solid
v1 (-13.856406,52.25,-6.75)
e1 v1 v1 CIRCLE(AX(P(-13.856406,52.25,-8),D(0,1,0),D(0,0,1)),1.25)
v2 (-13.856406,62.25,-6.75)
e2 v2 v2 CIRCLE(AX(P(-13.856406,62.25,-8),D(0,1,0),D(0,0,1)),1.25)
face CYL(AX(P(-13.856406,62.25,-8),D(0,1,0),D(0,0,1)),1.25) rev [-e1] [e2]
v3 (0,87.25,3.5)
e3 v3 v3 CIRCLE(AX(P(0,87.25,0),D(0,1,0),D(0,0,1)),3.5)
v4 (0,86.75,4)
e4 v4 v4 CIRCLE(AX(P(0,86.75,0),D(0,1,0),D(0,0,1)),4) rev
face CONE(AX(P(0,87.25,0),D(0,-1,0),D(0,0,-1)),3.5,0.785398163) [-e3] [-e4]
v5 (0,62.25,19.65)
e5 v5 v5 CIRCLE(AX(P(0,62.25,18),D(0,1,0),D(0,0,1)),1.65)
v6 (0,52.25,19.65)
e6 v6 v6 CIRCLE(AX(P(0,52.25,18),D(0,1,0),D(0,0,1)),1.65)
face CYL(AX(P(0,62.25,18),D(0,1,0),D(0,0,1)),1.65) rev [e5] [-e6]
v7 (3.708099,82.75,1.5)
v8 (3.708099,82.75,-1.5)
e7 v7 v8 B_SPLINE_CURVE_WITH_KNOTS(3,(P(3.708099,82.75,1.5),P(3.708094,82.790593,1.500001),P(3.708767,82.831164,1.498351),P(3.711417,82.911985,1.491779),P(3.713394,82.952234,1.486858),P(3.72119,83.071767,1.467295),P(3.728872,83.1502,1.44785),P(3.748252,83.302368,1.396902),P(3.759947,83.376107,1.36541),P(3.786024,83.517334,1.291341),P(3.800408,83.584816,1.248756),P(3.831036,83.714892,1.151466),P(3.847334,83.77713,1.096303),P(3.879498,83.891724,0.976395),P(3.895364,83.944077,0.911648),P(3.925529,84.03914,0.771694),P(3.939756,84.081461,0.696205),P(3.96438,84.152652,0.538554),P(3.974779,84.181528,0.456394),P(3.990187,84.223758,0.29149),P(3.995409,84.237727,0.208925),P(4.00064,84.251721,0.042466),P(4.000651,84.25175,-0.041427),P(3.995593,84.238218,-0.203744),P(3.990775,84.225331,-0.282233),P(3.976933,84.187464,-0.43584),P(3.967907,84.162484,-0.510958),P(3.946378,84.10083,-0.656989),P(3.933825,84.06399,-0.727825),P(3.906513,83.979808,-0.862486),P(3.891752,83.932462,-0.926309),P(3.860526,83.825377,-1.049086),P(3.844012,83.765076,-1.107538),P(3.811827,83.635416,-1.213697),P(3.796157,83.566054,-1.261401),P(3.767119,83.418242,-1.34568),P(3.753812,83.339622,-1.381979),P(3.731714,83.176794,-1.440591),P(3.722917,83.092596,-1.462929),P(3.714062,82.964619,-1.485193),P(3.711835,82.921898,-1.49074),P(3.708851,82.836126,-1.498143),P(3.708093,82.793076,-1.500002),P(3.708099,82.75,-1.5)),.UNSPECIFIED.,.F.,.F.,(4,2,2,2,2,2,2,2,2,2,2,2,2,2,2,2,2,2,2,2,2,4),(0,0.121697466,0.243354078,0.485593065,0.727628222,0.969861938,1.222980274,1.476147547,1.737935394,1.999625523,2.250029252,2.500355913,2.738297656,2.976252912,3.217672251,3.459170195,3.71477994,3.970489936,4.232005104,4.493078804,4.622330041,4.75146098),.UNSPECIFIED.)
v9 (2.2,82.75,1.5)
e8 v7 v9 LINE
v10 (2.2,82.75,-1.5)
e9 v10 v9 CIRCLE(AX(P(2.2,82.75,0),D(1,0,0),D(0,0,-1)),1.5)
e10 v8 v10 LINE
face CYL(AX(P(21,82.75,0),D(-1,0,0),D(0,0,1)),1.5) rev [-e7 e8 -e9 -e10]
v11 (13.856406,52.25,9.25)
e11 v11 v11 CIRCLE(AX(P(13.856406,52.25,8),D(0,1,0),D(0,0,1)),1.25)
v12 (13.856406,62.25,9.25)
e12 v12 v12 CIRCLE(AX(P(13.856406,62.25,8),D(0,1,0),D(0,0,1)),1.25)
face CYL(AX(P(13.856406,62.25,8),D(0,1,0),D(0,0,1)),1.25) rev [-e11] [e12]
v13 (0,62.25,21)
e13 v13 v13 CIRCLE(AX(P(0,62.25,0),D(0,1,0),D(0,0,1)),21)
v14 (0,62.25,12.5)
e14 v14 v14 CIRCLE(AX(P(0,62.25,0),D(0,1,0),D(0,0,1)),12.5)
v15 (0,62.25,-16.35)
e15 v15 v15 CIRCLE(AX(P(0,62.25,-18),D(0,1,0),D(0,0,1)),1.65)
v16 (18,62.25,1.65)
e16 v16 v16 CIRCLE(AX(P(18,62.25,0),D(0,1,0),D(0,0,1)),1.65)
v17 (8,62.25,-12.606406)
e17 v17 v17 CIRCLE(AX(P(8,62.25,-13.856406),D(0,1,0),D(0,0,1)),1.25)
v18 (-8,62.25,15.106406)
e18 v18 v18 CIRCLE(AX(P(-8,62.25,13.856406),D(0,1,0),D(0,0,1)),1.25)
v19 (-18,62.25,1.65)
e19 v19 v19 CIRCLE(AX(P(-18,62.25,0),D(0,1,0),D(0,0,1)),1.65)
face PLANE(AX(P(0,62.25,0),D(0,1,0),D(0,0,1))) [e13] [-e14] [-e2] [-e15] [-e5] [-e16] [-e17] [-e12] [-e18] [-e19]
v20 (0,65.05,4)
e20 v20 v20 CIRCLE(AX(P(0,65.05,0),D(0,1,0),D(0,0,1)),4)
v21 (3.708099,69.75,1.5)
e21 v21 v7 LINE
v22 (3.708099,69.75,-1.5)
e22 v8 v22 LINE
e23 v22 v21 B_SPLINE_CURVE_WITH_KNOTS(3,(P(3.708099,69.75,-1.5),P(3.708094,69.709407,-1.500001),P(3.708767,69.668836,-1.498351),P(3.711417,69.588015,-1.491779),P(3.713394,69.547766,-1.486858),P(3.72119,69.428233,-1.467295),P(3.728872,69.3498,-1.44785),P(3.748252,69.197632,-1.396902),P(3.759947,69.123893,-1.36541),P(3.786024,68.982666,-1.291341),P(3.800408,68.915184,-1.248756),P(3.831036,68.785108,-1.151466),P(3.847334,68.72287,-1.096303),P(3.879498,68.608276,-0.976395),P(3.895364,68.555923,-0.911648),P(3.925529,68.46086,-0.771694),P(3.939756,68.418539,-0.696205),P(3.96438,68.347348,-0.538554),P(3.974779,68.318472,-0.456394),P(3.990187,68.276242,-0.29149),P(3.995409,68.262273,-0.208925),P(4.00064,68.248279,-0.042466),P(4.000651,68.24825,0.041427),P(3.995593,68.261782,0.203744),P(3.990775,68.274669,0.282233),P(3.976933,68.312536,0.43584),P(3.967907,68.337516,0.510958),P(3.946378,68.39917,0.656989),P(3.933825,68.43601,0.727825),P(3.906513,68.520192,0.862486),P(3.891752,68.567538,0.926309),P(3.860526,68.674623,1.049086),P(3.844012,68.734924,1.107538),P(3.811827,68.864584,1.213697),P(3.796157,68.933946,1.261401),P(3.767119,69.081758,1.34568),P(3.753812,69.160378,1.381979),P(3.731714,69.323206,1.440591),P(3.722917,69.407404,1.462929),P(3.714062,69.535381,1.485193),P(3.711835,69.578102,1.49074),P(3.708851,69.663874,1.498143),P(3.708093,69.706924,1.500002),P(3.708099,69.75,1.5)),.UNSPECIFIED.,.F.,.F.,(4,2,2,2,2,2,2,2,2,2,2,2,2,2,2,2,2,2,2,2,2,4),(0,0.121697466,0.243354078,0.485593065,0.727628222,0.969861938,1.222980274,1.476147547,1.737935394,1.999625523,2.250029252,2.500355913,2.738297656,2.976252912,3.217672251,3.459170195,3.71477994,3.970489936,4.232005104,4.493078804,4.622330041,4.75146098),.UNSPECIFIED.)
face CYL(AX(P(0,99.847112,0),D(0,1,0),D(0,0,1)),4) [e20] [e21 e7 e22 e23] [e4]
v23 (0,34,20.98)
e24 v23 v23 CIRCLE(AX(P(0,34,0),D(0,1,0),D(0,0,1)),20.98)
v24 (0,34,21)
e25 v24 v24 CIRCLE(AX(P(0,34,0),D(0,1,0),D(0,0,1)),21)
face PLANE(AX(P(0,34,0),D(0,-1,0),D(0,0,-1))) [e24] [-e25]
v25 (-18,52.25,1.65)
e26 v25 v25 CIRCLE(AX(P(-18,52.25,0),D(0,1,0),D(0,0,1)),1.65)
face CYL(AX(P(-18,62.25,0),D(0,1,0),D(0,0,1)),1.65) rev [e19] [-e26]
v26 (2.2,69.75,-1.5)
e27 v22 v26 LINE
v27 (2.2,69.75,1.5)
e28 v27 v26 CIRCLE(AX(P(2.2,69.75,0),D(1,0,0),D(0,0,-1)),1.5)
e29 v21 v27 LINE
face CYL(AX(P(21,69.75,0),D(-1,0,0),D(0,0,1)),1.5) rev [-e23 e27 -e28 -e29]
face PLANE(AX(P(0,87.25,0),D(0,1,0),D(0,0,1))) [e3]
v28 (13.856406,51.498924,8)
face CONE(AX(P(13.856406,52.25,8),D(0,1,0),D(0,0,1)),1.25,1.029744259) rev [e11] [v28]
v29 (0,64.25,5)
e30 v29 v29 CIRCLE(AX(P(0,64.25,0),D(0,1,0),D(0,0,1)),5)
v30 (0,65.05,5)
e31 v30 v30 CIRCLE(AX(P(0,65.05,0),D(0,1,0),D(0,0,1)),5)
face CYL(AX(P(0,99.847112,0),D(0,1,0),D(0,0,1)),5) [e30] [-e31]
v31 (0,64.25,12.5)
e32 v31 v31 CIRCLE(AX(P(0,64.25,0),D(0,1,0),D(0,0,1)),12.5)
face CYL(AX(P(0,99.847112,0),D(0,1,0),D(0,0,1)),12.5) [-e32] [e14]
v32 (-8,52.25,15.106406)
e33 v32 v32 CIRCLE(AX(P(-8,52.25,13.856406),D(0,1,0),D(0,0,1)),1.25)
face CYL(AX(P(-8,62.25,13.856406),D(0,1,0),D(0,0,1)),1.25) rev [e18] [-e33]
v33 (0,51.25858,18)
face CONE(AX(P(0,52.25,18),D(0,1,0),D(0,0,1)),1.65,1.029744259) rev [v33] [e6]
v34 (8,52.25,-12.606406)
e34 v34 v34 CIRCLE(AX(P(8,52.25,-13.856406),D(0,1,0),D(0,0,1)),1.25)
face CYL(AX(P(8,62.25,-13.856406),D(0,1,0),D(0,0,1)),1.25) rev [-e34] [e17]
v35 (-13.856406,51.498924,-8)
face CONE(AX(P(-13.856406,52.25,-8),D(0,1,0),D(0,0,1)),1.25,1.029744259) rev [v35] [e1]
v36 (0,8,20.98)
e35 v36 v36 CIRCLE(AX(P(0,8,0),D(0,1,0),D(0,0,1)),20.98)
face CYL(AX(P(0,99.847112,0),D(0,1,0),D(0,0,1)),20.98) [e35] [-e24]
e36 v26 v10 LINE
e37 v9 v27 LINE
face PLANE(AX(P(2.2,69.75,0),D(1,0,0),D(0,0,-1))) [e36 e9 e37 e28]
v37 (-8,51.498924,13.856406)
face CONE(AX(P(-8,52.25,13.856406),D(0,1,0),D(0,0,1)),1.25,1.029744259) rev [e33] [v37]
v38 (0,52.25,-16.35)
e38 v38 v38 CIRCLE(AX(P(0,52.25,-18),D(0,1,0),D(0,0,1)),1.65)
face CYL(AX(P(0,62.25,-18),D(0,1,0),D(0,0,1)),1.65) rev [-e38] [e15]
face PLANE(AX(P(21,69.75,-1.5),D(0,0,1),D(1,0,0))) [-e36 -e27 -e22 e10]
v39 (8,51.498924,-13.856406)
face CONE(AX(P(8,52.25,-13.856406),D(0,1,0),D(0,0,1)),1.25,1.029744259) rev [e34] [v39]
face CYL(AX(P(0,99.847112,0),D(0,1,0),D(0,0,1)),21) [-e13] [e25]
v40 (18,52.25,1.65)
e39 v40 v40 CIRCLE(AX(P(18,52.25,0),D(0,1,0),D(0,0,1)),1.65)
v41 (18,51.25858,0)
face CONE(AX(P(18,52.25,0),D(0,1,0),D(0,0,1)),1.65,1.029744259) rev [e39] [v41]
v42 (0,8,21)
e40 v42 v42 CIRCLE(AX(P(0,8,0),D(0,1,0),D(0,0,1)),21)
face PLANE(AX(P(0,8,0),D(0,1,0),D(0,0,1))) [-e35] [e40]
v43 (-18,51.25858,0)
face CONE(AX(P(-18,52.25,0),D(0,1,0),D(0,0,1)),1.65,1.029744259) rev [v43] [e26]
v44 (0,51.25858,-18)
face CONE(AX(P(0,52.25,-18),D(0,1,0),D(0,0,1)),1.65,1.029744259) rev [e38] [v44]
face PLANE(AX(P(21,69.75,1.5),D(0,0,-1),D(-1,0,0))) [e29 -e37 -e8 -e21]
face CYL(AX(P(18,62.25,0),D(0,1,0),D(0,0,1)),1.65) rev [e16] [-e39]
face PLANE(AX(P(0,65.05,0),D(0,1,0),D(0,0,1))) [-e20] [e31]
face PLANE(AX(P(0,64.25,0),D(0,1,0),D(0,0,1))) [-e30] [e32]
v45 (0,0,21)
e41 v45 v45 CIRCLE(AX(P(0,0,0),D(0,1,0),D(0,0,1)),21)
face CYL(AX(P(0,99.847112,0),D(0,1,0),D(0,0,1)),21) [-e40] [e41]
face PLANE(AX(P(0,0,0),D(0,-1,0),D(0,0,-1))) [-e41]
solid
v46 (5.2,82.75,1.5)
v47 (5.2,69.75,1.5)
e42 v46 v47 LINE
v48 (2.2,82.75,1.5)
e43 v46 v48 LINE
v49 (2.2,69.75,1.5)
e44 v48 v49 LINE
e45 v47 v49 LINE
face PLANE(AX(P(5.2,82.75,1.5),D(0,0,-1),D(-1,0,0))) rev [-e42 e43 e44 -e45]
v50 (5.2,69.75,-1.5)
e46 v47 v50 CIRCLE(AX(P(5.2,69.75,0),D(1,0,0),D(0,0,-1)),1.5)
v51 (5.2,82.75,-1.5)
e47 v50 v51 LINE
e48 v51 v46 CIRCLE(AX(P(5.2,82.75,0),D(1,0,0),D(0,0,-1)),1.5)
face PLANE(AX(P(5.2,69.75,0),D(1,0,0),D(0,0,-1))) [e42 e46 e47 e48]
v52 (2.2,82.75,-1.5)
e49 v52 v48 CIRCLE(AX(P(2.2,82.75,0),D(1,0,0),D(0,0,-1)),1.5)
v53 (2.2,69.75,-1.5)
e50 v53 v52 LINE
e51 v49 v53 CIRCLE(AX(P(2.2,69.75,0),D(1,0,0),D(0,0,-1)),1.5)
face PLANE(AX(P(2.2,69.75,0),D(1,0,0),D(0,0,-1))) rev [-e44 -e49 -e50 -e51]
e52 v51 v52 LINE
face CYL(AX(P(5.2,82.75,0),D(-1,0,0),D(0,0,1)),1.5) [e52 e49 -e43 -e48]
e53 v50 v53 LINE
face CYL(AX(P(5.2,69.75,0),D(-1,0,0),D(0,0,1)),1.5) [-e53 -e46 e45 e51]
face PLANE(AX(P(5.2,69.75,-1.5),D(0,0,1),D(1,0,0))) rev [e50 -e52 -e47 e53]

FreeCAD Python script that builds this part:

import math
import FreeCAD as App
import Part
import Sketcher
from FreeCAD import Vector
Q = App.Units.Quantity


def edges_at(feature, points):
    """Names of the edges that pass closest to the given points."""
    edges = feature.Shape.Edges
    near = lambda p: min(range(len(edges)), key=lambda i: edges[i].distToShape(Part.Vertex(*p))[0])
    return sorted({f"Edge{near(p) + 1}" for p in points})

doc = App.newDocument("Part")
body = doc.addObject("PartDesign::Body", "Body")

# Sketch on XY plane
sketch1 = body.newObject("Sketcher::SketchObject", "Sketch")
sketch1.AttachmentSupport = (doc.getObject("XY_Plane"), [""])
sketch1.MapMode = "FlatFace"
sketch1.addGeometry(Part.LineSegment(Vector(4, 87.25, 0), Vector(0, 87.25, 0)), False)
sketch1.addGeometry(Part.LineSegment(Vector(0, 87.25, 0), Vector(0, 0, 0)), False)
sketch1.addGeometry(Part.LineSegment(Vector(0, 0, 0), Vector(21, 0, 0)), False)
sketch1.addGeometry(Part.LineSegment(Vector(21, 0, 0), Vector(21, 8, 0)), False)
sketch1.addGeometry(Part.LineSegment(Vector(21, 8, 0), Vector(20.98, 8, 0)), False)
sketch1.addGeometry(Part.LineSegment(Vector(20.98, 8, 0), Vector(20.98, 34, 0)), False)
sketch1.addGeometry(Part.LineSegment(Vector(20.98, 34, 0), Vector(21, 34, 0)), False)
sketch1.addGeometry(Part.LineSegment(Vector(21, 34, 0), Vector(21, 62.25, 0)), False)
sketch1.addGeometry(Part.LineSegment(Vector(21, 62.25, 0), Vector(12.5, 62.25, 0)), False)
sketch1.addGeometry(Part.LineSegment(Vector(12.5, 62.25, 0), Vector(12.5, 64.25, 0)), False)
sketch1.addGeometry(Part.LineSegment(Vector(12.5, 64.25, 0), Vector(5, 64.25, 0)), False)
sketch1.addGeometry(Part.LineSegment(Vector(5, 64.25, 0), Vector(5, 65.05, 0)), False)
sketch1.addGeometry(Part.LineSegment(Vector(5, 65.05, 0), Vector(4, 65.05, 0)), False)
sketch1.addGeometry(Part.LineSegment(Vector(4, 65.05, 0), Vector(4, 87.25, 0)), False)
sketch1.addConstraint(Sketcher.Constraint("Coincident", 0, 2, 1, 1))
sketch1.addConstraint(Sketcher.Constraint("Coincident", 1, 2, 2, 1))
sketch1.addConstraint(Sketcher.Constraint("Coincident", 2, 2, 3, 1))
sketch1.addConstraint(Sketcher.Constraint("Coincident", 3, 2, 4, 1))
sketch1.addConstraint(Sketcher.Constraint("Coincident", 4, 2, 5, 1))
sketch1.addConstraint(Sketcher.Constraint("Coincident", 5, 2, 6, 1))
sketch1.addConstraint(Sketcher.Constraint("Coincident", 6, 2, 7, 1))
sketch1.addConstraint(Sketcher.Constraint("Coincident", 7, 2, 8, 1))
sketch1.addConstraint(Sketcher.Constraint("Coincident", 8, 2, 9, 1))
sketch1.addConstraint(Sketcher.Constraint("Coincident", 9, 2, 10, 1))
sketch1.addConstraint(Sketcher.Constraint("Coincident", 10, 2, 11, 1))
sketch1.addConstraint(Sketcher.Constraint("Coincident", 11, 2, 12, 1))
sketch1.addConstraint(Sketcher.Constraint("Coincident", 12, 2, 13, 1))
sketch1.addConstraint(Sketcher.Constraint("Coincident", 13, 2, 0, 1))
sketch1.addConstraint(Sketcher.Constraint("Horizontal", 0))
sketch1.addConstraint(Sketcher.Constraint("Vertical", 1))
sketch1.addConstraint(Sketcher.Constraint("Horizontal", 2))
sketch1.addConstraint(Sketcher.Constraint("Vertical", 3))
sketch1.addConstraint(Sketcher.Constraint("Horizontal", 4))
sketch1.addConstraint(Sketcher.Constraint("Vertical", 5))
sketch1.addConstraint(Sketcher.Constraint("Horizontal", 6))
sketch1.addConstraint(Sketcher.Constraint("Vertical", 7))
sketch1.addConstraint(Sketcher.Constraint("Horizontal", 8))
sketch1.addConstraint(Sketcher.Constraint("Vertical", 9))
sketch1.addConstraint(Sketcher.Constraint("Horizontal", 10))
sketch1.addConstraint(Sketcher.Constraint("Vertical", 11))
sketch1.addConstraint(Sketcher.Constraint("Horizontal", 12))
sketch1.addConstraint(Sketcher.Constraint("Vertical", 13))
sketch1.addConstraint(Sketcher.Constraint("Coincident", 1, 2, -1, 1))
sketch1.addConstraint(Sketcher.Constraint("Vertical", 3, 2, 6, 2))
sketch1.addConstraint(Sketcher.Constraint("DistanceX", 0, 2, 0, 1, 4.0))
sketch1.addConstraint(Sketcher.Constraint("DistanceX", 2, 1, 2, 2, 21.0))
sketch1.addConstraint(Sketcher.Constraint("DistanceX", 12, 2, 12, 1, 1.0))
sketch1.addConstraint(Sketcher.Constraint("DistanceY", 3, 1, 3, 2, 8.0))
sketch1.addConstraint(Sketcher.Constraint("DistanceY", 5, 1, 5, 2, 26.0))
sketch1.addConstraint(Sketcher.Constraint("DistanceY", 9, 1, 9, 2, 2.0))
sketch1.addConstraint(Sketcher.Constraint("DistanceX", 8, 2, 8, 1, 8.5))
sketch1.addConstraint(Sketcher.Constraint("DistanceY", 11, 1, 11, 2, 0.8))
sketch1.addConstraint(Sketcher.Constraint("DistanceY", 13, 1, 13, 2, 22.2))
sketch1.addConstraint(Sketcher.Constraint("DistanceX", 4, 2, 4, 1, 0.02))
sketch1.addConstraint(Sketcher.Constraint("DistanceY", 1, 2, 1, 1, 87.25))
revolution = body.newObject("PartDesign::Revolution", "Revolution")
revolution.Profile = sketch1
revolution.ReferenceAxis = (sketch1, ["V_Axis"])
revolution.Angle = 360

# Sketch on YZ plane
sketch2 = body.newObject("Sketcher::SketchObject", "Sketch001")
sketch2.AttachmentSupport = (doc.getObject("YZ_Plane"), [""])
sketch2.MapMode = "FlatFace"
sketch2.AttachmentOffset = App.Placement(Vector(0, 0, 2.2), App.Rotation())
sketch2.addGeometry(Part.LineSegment(Vector(82.8, 1.5, 0), Vector(69.8, 1.5, 0)), False)
sketch2.addGeometry(Part.ArcOfCircle(Part.Circle(Vector(69.8, 0, 0), Vector(0, 0, 1), 1.5), math.radians(90), math.radians(270)), False)
sketch2.addGeometry(Part.LineSegment(Vector(69.8, -1.5, 0), Vector(82.8, -1.5, 0)), False)
sketch2.addGeometry(Part.ArcOfCircle(Part.Circle(Vector(82.8, 0, 0), Vector(0, 0, 1), 1.5), math.radians(-90), math.radians(90)), False)
sketch2.addConstraint(Sketcher.Constraint("Tangent", 0, 2, 1, 1))
sketch2.addConstraint(Sketcher.Constraint("Tangent", 1, 2, 2, 1))
sketch2.addConstraint(Sketcher.Constraint("Tangent", 2, 2, 3, 1))
sketch2.addConstraint(Sketcher.Constraint("Tangent", 3, 2, 0, 1))
sketch2.addConstraint(Sketcher.Constraint("Horizontal", 0))
sketch2.addConstraint(Sketcher.Constraint("Horizontal", 2))
sketch2.addConstraint(Sketcher.Constraint("PointOnObject", 1, 3, -1))
sketch2.addConstraint(Sketcher.Constraint("Radius", 1, 1.5))
sketch2.addConstraint(Sketcher.Constraint("DistanceX", 0, 2, 0, 1, 13.0))
sketch2.addConstraint(Sketcher.Constraint("DistanceX", -1, 1, 1, 3, 69.75))
pocket1 = body.newObject("PartDesign::Pocket", "Pocket")
pocket1.Profile = sketch2
pocket1.Type = "ThroughAll"
pocket1.Reversed = True
doc.recompute()

chamfer = body.newObject("PartDesign::Chamfer", "Chamfer")
chamfer.Base = (pocket1, edges_at(pocket1, [(0, 87.25, -4)]))
chamfer.Size = 0.5

# Sketch on YZ plane
sketch3 = body.newObject("Sketcher::SketchObject", "Sketch002")
sketch3.AttachmentSupport = (doc.getObject("YZ_Plane"), [""])
sketch3.MapMode = "FlatFace"
sketch3.AttachmentOffset = App.Placement(Vector(0, 0, 13.856406), App.Rotation())
sketch3.addGeometry(Part.LineSegment(Vector(51.5, 8, 0), Vector(62.2, 8, 0)), False)
sketch3.addGeometry(Part.LineSegment(Vector(62.2, 8, 0), Vector(62.2, 9.2, 0)), False)
sketch3.addGeometry(Part.LineSegment(Vector(62.2, 9.2, 0), Vector(52.2, 9.2, 0)), False)
sketch3.addGeometry(Part.LineSegment(Vector(52.2, 9.2, 0), Vector(51.5, 8, 0)), False)
sketch3.addGeometry(Part.LineSegment(Vector(62.2, 8, 0), Vector(51.5, 8, 0)), True)  # axis
sketch3.addConstraint(Sketcher.Constraint("Coincident", 0, 2, 1, 1))
sketch3.addConstraint(Sketcher.Constraint("Coincident", 1, 2, 2, 1))
sketch3.addConstraint(Sketcher.Constraint("Coincident", 2, 2, 3, 1))
sketch3.addConstraint(Sketcher.Constraint("Coincident", 3, 2, 0, 1))
sketch3.addConstraint(Sketcher.Constraint("Horizontal", 0))
sketch3.addConstraint(Sketcher.Constraint("Vertical", 1))
sketch3.addConstraint(Sketcher.Constraint("Horizontal", 2))
sketch3.addConstraint(Sketcher.Constraint("Horizontal", 4))
sketch3.addConstraint(Sketcher.Constraint("Coincident", 4, 1, 0, 2))
sketch3.addConstraint(Sketcher.Constraint("Equal", 0, 4))
sketch3.addConstraint(Sketcher.Constraint("DistanceX", 2, 2, 2, 1, 10.0))
sketch3.addConstraint(Sketcher.Constraint("Angle", 3, Q("-121 deg")))
sketch3.addConstraint(Sketcher.Constraint("DistanceY", -1, 1, 0, 2, 8.0))
sketch3.addConstraint(Sketcher.Constraint("DistanceY", 1, 1, 1, 2, 1.25))
sketch3.addConstraint(Sketcher.Constraint("DistanceX", -1, 1, 0, 2, 62.25))
groove = body.newObject("PartDesign::Groove", "Groove")
groove.Profile = sketch3
groove.ReferenceAxis = (sketch3, ["Axis0"])
groove.Angle = 360
doc.recompute()

datumline = body.newObject("PartDesign::Line", "DatumLine")
datumline.Placement = App.Placement(Vector(0, 0, 0), App.Rotation(Vector(0, 0, 1), Vector(-0.258819045, 0, -0.965925826)))
linearpattern = body.newObject("PartDesign::LinearPattern", "LinearPattern")
linearpattern.Originals = [groove]
linearpattern.Direction = (datumline, [""])
linearpattern.Mode = "offset"
linearpattern.Offset = 22.627417
linearpattern.Occurrences = 2
body.Tip = linearpattern
doc.recompute()

datumline2 = body.newObject("PartDesign::Line", "DatumLine001")
datumline2.Placement = App.Placement(Vector(0, 0, 0), App.Rotation(Vector(0, 0, 1), Vector(-0.965925826, 0, 0.258819045)))
linearpattern2 = body.newObject("PartDesign::LinearPattern", "LinearPattern001")
linearpattern2.Originals = [groove]
linearpattern2.Direction = (datumline2, [""])
linearpattern2.Mode = "offset"
linearpattern2.Offset = 22.627417
linearpattern2.Occurrences = 2
body.Tip = linearpattern2
doc.recompute()

datumline3 = body.newObject("PartDesign::Line", "DatumLine002")
datumline3.Placement = App.Placement(Vector(0, 0, 0), App.Rotation(Vector(0, 0, 1), Vector(-0.866025404, 0, -0.5)))
linearpattern3 = body.newObject("PartDesign::LinearPattern", "LinearPattern002")
linearpattern3.Originals = [groove]
linearpattern3.Direction = (datumline3, [""])
linearpattern3.Mode = "offset"
linearpattern3.Offset = 32
linearpattern3.Occurrences = 2
body.Tip = linearpattern3

# Sketch on YZ plane
sketch4 = body.newObject("Sketcher::SketchObject", "Sketch003")
sketch4.AttachmentSupport = (doc.getObject("YZ_Plane"), [""])
sketch4.MapMode = "FlatFace"
sketch4.AttachmentOffset = App.Placement(Vector(0, 0, 18), App.Rotation())
sketch4.addGeometry(Part.LineSegment(Vector(51.3, 0, 0), Vector(62.2, 0, 0)), False)
sketch4.addGeometry(Part.LineSegment(Vector(62.2, 0, 0), Vector(62.2, 1.6, 0)), False)
sketch4.addGeometry(Part.LineSegment(Vector(62.2, 1.6, 0), Vector(52.2, 1.6, 0)), False)
sketch4.addGeometry(Part.LineSegment(Vector(52.2, 1.6, 0), Vector(51.3, 0, 0)), False)
sketch4.addConstraint(Sketcher.Constraint("Coincident", 0, 2, 1, 1))
sketch4.addConstraint(Sketcher.Constraint("Coincident", 1, 2, 2, 1))
sketch4.addConstraint(Sketcher.Constraint("Coincident", 2, 2, 3, 1))
sketch4.addConstraint(Sketcher.Constraint("Coincident", 3, 2, 0, 1))
sketch4.addConstraint(Sketcher.Constraint("Horizontal", 0))
sketch4.addConstraint(Sketcher.Constraint("Vertical", 1))
sketch4.addConstraint(Sketcher.Constraint("Horizontal", 2))
sketch4.addConstraint(Sketcher.Constraint("PointOnObject", 0, 2, -1))
sketch4.addConstraint(Sketcher.Constraint("DistanceX", 2, 2, 2, 1, 10.0))
sketch4.addConstraint(Sketcher.Constraint("Angle", 3, Q("-121 deg")))
sketch4.addConstraint(Sketcher.Constraint("DistanceY", 1, 1, 1, 2, 1.65))
sketch4.addConstraint(Sketcher.Constraint("DistanceX", -1, 1, 0, 2, 62.25))
groove2 = body.newObject("PartDesign::Groove", "Groove001")
groove2.Profile = sketch4
groove2.ReferenceAxis = (sketch4, ["H_Axis"])
groove2.Angle = 360
doc.recompute()

datumline4 = body.newObject("PartDesign::Line", "DatumLine003")
datumline4.Placement = App.Placement(Vector(0, 0, 0), App.Rotation(Vector(0, 0, 1), Vector(-0.707106781, 0, 0.707106781)))
linearpattern4 = body.newObject("PartDesign::LinearPattern", "LinearPattern003")
linearpattern4.Originals = [groove2]
linearpattern4.Direction = (datumline4, [""])
linearpattern4.Mode = "offset"
linearpattern4.Offset = 25.455844
linearpattern4.Occurrences = 2
body.Tip = linearpattern4
doc.recompute()

linearpattern5 = body.newObject("PartDesign::LinearPattern", "LinearPattern004")
linearpattern5.Originals = [groove2]
linearpattern5.Direction = (doc.getObject("X_Axis"), [""])
linearpattern5.Mode = "offset"
linearpattern5.Offset = 36
linearpattern5.Occurrences = 2
linearpattern5.Reversed = True
body.Tip = linearpattern5
doc.recompute()

datumline5 = body.newObject("PartDesign::Line", "DatumLine004")
datumline5.Placement = App.Placement(Vector(0, 0, 0), App.Rotation(Vector(0, 0, 1), Vector(-0.707106781, 0, -0.707106781)))
linearpattern6 = body.newObject("PartDesign::LinearPattern", "LinearPattern005")
linearpattern6.Originals = [groove2]
linearpattern6.Direction = (datumline5, [""])
linearpattern6.Mode = "offset"
linearpattern6.Offset = 25.455844
linearpattern6.Occurrences = 2
body.Tip = linearpattern6
body2 = doc.addObject("PartDesign::Body", "Body001")

# Sketch on YZ plane
sketch5 = body2.newObject("Sketcher::SketchObject", "Sketch004")
sketch5.AttachmentSupport = (doc.getObject("YZ_Plane001"), [""])
sketch5.MapMode = "FlatFace"
sketch5.AttachmentOffset = App.Placement(Vector(0, 0, 2.2), App.Rotation())
sketch5.addGeometry(Part.LineSegment(Vector(69.8, -1.5, 0), Vector(82.8, -1.5, 0)), False)
sketch5.addGeometry(Part.ArcOfCircle(Part.Circle(Vector(82.8, 0, 0), Vector(0, 0, 1), 1.5), math.radians(-90), math.radians(90)), False)
sketch5.addGeometry(Part.LineSegment(Vector(82.8, 1.5, 0), Vector(69.8, 1.5, 0)), False)
sketch5.addGeometry(Part.ArcOfCircle(Part.Circle(Vector(69.8, 0, 0), Vector(0, 0, 1), 1.5), math.radians(90), math.radians(270)), False)
sketch5.addConstraint(Sketcher.Constraint("Tangent", 0, 2, 1, 1))
sketch5.addConstraint(Sketcher.Constraint("Tangent", 1, 2, 2, 1))
sketch5.addConstraint(Sketcher.Constraint("Tangent", 2, 2, 3, 1))
sketch5.addConstraint(Sketcher.Constraint("Tangent", 3, 2, 0, 1))
sketch5.addConstraint(Sketcher.Constraint("Horizontal", 0))
sketch5.addConstraint(Sketcher.Constraint("Horizontal", 2))
sketch5.addConstraint(Sketcher.Constraint("PointOnObject", 1, 3, -1))
sketch5.addConstraint(Sketcher.Constraint("Radius", 1, 1.5))
sketch5.addConstraint(Sketcher.Constraint("DistanceX", 0, 1, 0, 2, 13.0))
sketch5.addConstraint(Sketcher.Constraint("DistanceX", -1, 1, 1, 3, 82.75))
pad1 = body2.newObject("PartDesign::Pad", "Pad")
pad1.Profile = sketch5
pad1.Length = 3

doc.recompute()
